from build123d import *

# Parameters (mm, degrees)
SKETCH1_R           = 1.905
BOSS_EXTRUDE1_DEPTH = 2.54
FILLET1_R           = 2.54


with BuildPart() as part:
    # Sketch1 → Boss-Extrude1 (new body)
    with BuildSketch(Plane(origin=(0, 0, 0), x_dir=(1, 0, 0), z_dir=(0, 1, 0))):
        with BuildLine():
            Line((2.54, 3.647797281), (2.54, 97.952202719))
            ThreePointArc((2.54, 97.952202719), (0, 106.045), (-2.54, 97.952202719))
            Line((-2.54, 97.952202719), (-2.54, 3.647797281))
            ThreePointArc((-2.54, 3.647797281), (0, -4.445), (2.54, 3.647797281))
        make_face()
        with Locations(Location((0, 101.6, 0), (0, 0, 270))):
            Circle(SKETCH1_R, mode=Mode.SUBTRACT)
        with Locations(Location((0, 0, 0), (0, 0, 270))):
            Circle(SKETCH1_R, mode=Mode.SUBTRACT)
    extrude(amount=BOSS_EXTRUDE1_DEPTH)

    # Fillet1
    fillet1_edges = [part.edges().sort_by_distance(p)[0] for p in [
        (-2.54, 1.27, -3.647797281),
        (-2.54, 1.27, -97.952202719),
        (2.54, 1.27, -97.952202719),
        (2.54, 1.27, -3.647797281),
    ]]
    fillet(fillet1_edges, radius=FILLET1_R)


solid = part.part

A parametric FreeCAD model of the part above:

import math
import FreeCAD as App
import Part
import Sketcher
from FreeCAD import Vector
Q = App.Units.Quantity


def edges_at(feature, points):
    """Names of the edges that pass closest to the given points."""
    edges = feature.Shape.Edges
    near = lambda p: min(range(len(edges)), key=lambda i: edges[i].distToShape(Part.Vertex(*p))[0])
    return sorted({f"Edge{near(p) + 1}" for p in points})

doc = App.newDocument("Part")
body = doc.addObject("PartDesign::Body", "Body")

sketch1 = body.newObject("Sketcher::SketchObject", "Sketch")
sketch1.AttachmentSupport = (doc.getObject("XZ_Plane"), [""])
sketch1.MapMode = "FlatFace"
sketch1.addGeometry(Part.LineSegment(Vector(2.54, -3.647797, 0), Vector(2.54, -97.952203, 0)), False)
sketch1.addGeometry(Part.ArcOfCircle(Part.Circle(Vector(0, -101.6, 0), Vector(0, 0, 1), 4.445), math.radians(124.849905), math.radians(415.150095)), False)
sketch1.addGeometry(Part.LineSegment(Vector(-2.54, -97.952203, 0), Vector(-2.54, -3.647797, 0)), False)
sketch1.addGeometry(Part.ArcOfCircle(Part.Circle(Vector(0, 0, 0), Vector(0, 0, 1), 4.445), math.radians(-55.150095), math.radians(235.150095)), False)
sketch1.addGeometry(Part.Circle(Vector(0, 0, 0), Vector(0, 0, 1), 1.905), False)
sketch1.addGeometry(Part.Circle(Vector(0, -101.6, 0), Vector(0, 0, 1), 1.905), False)
sketch1.addConstraint(Sketcher.Constraint("Coincident", 0, 2, 1, 2))
sketch1.addConstraint(Sketcher.Constraint("Coincident", 1, 1, 2, 1))
sketch1.addConstraint(Sketcher.Constraint("Coincident", 2, 2, 3, 2))
sketch1.addConstraint(Sketcher.Constraint("Coincident", 3, 1, 0, 1))
sketch1.addConstraint(Sketcher.Constraint("Vertical", 0))
sketch1.addConstraint(Sketcher.Constraint("Vertical", 2))
sketch1.addConstraint(Sketcher.Constraint("Coincident", 3, 3, -1, 1))
sketch1.addConstraint(Sketcher.Constraint("Coincident", 4, 3, -1, 1))
sketch1.addConstraint(Sketcher.Constraint("Coincident", 5, 3, 1, 3))
sketch1.addConstraint(Sketcher.Constraint("Equal", 1, 3))
sketch1.addConstraint(Sketcher.Constraint("Equal", 4, 5))
sketch1.addConstraint(Sketcher.Constraint("Symmetric", 0, 2, 1, 1, -2))
sketch1.addConstraint(Sketcher.Constraint("Diameter", 4, Q("0.15 in")))
sketch1.addConstraint(Sketcher.Constraint("DistanceY", 1, 3, -1, 1, Q("4 in")))
sketch1.addConstraint(Sketcher.Constraint("Radius", 1, Q("0.175 in")))
sketch1.addConstraint(Sketcher.Constraint("DistanceX", -1, 1, 0, 2, Q("0.1 in")))
pad1 = body.newObject("PartDesign::Pad", "Pad")
pad1.Profile = sketch1
pad1.Length = Q("0.1 in")
pad1.Reversed = True
doc.recompute()

fillet = body.newObject("PartDesign::Fillet", "Fillet")
fillet.Base = (pad1, edges_at(pad1, [
    (-2.54, 1.27, -3.648),
    (-2.54, 1.27, -97.952),
    (2.54, 1.27, -97.952),
    (2.54, 1.27, -3.648),
]))
fillet.Radius = Q("0.1 in")

doc.recompute()
